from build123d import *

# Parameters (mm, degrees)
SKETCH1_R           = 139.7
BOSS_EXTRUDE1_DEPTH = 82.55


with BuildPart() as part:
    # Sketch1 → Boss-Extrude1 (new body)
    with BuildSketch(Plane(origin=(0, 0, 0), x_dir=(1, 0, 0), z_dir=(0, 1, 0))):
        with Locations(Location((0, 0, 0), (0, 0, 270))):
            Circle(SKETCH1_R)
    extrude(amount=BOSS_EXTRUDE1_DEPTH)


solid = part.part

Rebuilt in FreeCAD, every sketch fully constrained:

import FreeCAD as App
import Part
import Sketcher

V = App.Vector
Q = App.Units.Quantity

doc = App.newDocument("Part")
body = doc.addObject("PartDesign::Body", "Body")

sketch1 = body.newObject("Sketcher::SketchObject", "Sketch")
sketch1.AttachmentSupport = (doc.getObject("XZ_Plane"), [""])
sketch1.MapMode = "FlatFace"
sketch1.addGeometry(Part.Circle(V(0, 0, 0), V(0, 0, 1), 140), False)
sketch1.addConstraint([
    Sketcher.Constraint("Coincident", 0, 3, -1, 1),
    Sketcher.Constraint("Diameter", 0, Q("11 in")),
])
pad1 = body.newObject("PartDesign::Pad", "Pad")
pad1.Profile = sketch1
pad1.Length = Q("3.25 in")
pad1.Reversed = True

doc.recompute()
